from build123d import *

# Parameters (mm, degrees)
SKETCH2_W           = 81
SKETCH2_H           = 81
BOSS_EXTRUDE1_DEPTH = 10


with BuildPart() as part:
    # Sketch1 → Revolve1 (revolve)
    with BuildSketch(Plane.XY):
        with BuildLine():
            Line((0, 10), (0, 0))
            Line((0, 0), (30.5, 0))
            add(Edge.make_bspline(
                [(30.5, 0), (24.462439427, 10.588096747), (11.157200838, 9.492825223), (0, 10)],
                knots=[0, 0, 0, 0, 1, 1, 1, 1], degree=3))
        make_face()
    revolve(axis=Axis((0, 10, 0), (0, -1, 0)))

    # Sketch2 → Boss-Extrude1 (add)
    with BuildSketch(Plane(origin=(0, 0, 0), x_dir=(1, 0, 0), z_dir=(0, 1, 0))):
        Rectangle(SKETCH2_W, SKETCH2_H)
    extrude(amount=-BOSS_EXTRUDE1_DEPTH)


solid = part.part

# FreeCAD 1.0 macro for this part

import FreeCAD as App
import Part
import Sketcher
from FreeCAD import Vector


def add_polygon(sketch, points):
    """Adds a closed chain of lines whose ends are joined by coincident constraints."""
    first, n = sketch.GeometryCount, len(points)
    for a, b in zip(points, points[1:] + points[:1]):
        sketch.addGeometry(Part.LineSegment(App.Vector(*a, 0), App.Vector(*b, 0)), False)
    for i in range(n):
        sketch.addConstraint(Sketcher.Constraint("Coincident", first + i, 2, first + (i + 1) % n, 1))

doc = App.newDocument("Part")
body = doc.addObject("PartDesign::Body", "Body")

sketch1 = doc.addObject("Sketcher::SketchObject", "Sketch")
body.addObject(sketch1)
sketch1.AttachmentSupport = (doc.XY_Plane, [""])
sketch1.MapMode = "FlatFace"
sketch1.addGeometry([
    Part.LineSegment(Vector(0, 10, 0), Vector(0, 0, 0)),
    Part.LineSegment(Vector(0, 0, 0), Vector(30.5, 0, 0)),
    Part.BSplineCurve([Vector(30.5, 0, 0), Vector(24.462439, 10.588097, 0), Vector(11.157201, 9.492825, 0), Vector(0, 10, 0)], [4, 4], [0, 1], False, 3, [1, 1, 1, 1], False),
], False)
sketch1.addConstraint([
    Sketcher.Constraint("Block", 2),
    Sketcher.Constraint("Coincident", 0, 2, 1, 1),
    Sketcher.Constraint("Coincident", 1, 2, 2, 1),
    Sketcher.Constraint("Coincident", 2, 2, 0, 1),
    Sketcher.Constraint("Vertical", 0),
    Sketcher.Constraint("Horizontal", 1),
])
revolution = doc.addObject("PartDesign::Revolution", "Revolution")
body.addObject(revolution)
revolution.Profile = sketch1
revolution.ReferenceAxis = (sketch1, ["V_Axis"])
revolution.Angle = 360

sketch2 = doc.addObject("Sketcher::SketchObject", "Sketch001")
body.addObject(sketch2)
sketch2.AttachmentSupport = (doc.XZ_Plane, [""])
sketch2.MapMode = "FlatFace"
add_polygon(sketch2, [(-40, -40), (-40, 40), (40, 40), (40, -40)])
sketch2.addConstraint([
    Sketcher.Constraint("Vertical", 0),
    Sketcher.Constraint("Horizontal", 1),
    Sketcher.Constraint("Vertical", 2),
    Sketcher.Constraint("Horizontal", 3),
    Sketcher.Constraint("Symmetric", 0, 2, 2, 2, -1, 1),
    Sketcher.Constraint("Equal", 3, 0),
    Sketcher.Constraint("DistanceX", 1, 1, 1, 2, 81.0),
])
pad1 = doc.addObject("PartDesign::Pad", "Pad")
body.addObject(pad1)
pad1.Profile = sketch2
pad1.Length = 10

doc.recompute()
